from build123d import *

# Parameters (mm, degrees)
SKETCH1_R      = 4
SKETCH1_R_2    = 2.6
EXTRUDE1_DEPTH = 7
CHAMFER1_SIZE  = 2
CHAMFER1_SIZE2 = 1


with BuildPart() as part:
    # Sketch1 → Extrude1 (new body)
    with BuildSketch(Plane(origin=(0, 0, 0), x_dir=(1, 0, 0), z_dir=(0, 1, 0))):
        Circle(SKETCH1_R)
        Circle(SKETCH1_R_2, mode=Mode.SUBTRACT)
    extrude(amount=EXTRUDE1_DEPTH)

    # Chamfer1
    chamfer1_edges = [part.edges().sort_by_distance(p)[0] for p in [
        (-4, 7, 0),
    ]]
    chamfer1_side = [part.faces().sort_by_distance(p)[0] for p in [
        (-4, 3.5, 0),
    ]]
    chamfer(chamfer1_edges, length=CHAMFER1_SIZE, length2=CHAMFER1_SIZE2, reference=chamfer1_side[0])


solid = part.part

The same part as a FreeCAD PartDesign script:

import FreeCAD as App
import Part
import Sketcher
Q = App.Units.Quantity


def edges_at(feature, points):
    """Names of the edges that pass closest to the given points."""
    edges = feature.Shape.Edges
    near = lambda p: min(range(len(edges)), key=lambda i: edges[i].distToShape(Part.Vertex(*p))[0])
    return sorted({f"Edge{near(p) + 1}" for p in points})

doc = App.newDocument("Part")
params = doc.addObject("Spreadsheet::Sheet", "Params")
for row, (alias, value) in enumerate([
    ("sketch1_diameter", "8 mm"),
    ("sketch1_diameter2", "5.2 mm"),
    ("pad1_length", "7 mm"),
    ("chamfer_size", "2 mm"),
    ("chamfer_size2", "1 mm"),
], start=1):
    params.set(f"A{row}", alias)
    params.set(f"B{row}", "=" + value)
    params.setAlias(f"B{row}", alias)

body = doc.addObject("PartDesign::Body", "Body")

# Sketch on XZ plane
sketch1 = doc.addObject("Sketcher::SketchObject", "Sketch")
body.addObject(sketch1)
sketch1.AttachmentSupport = (doc.XZ_Plane, [""])
sketch1.MapMode = "FlatFace"
sketch1.addGeometry([
    Part.Circle(App.Vector(0, 0, 0), App.Vector(0, 0, 1), 4),
    Part.Circle(App.Vector(0, 0, 0), App.Vector(0, 0, 1), 2.6),
], False)
sketch1.addConstraint([
    Sketcher.Constraint("Coincident", 0, 3, -1, 1),
    Sketcher.Constraint("Coincident", 1, 3, -1, 1),
    Sketcher.Constraint("Diameter", 0, Q("8 mm")),
    Sketcher.Constraint("Diameter", 1, Q("5.2 mm")),
])
sketch1.setExpression("Constraints[2]", "Params.sketch1_diameter")
sketch1.setExpression("Constraints[3]", "Params.sketch1_diameter2")
pad1 = doc.addObject("PartDesign::Pad", "Pad")
body.addObject(pad1)
pad1.Profile = sketch1
pad1.setExpression("Length", "Params.pad1_length")
pad1.Reversed = True
doc.recompute()

chamfer = doc.addObject("PartDesign::Chamfer", "Chamfer")
body.addObject(chamfer)
chamfer.Base = (pad1, edges_at(pad1, [(-4, 7, 0)]))
chamfer.ChamferType = "Two distances"
chamfer.setExpression("Size", "Params.chamfer_size")
chamfer.setExpression("Size2", "Params.chamfer_size2")

doc.recompute()
